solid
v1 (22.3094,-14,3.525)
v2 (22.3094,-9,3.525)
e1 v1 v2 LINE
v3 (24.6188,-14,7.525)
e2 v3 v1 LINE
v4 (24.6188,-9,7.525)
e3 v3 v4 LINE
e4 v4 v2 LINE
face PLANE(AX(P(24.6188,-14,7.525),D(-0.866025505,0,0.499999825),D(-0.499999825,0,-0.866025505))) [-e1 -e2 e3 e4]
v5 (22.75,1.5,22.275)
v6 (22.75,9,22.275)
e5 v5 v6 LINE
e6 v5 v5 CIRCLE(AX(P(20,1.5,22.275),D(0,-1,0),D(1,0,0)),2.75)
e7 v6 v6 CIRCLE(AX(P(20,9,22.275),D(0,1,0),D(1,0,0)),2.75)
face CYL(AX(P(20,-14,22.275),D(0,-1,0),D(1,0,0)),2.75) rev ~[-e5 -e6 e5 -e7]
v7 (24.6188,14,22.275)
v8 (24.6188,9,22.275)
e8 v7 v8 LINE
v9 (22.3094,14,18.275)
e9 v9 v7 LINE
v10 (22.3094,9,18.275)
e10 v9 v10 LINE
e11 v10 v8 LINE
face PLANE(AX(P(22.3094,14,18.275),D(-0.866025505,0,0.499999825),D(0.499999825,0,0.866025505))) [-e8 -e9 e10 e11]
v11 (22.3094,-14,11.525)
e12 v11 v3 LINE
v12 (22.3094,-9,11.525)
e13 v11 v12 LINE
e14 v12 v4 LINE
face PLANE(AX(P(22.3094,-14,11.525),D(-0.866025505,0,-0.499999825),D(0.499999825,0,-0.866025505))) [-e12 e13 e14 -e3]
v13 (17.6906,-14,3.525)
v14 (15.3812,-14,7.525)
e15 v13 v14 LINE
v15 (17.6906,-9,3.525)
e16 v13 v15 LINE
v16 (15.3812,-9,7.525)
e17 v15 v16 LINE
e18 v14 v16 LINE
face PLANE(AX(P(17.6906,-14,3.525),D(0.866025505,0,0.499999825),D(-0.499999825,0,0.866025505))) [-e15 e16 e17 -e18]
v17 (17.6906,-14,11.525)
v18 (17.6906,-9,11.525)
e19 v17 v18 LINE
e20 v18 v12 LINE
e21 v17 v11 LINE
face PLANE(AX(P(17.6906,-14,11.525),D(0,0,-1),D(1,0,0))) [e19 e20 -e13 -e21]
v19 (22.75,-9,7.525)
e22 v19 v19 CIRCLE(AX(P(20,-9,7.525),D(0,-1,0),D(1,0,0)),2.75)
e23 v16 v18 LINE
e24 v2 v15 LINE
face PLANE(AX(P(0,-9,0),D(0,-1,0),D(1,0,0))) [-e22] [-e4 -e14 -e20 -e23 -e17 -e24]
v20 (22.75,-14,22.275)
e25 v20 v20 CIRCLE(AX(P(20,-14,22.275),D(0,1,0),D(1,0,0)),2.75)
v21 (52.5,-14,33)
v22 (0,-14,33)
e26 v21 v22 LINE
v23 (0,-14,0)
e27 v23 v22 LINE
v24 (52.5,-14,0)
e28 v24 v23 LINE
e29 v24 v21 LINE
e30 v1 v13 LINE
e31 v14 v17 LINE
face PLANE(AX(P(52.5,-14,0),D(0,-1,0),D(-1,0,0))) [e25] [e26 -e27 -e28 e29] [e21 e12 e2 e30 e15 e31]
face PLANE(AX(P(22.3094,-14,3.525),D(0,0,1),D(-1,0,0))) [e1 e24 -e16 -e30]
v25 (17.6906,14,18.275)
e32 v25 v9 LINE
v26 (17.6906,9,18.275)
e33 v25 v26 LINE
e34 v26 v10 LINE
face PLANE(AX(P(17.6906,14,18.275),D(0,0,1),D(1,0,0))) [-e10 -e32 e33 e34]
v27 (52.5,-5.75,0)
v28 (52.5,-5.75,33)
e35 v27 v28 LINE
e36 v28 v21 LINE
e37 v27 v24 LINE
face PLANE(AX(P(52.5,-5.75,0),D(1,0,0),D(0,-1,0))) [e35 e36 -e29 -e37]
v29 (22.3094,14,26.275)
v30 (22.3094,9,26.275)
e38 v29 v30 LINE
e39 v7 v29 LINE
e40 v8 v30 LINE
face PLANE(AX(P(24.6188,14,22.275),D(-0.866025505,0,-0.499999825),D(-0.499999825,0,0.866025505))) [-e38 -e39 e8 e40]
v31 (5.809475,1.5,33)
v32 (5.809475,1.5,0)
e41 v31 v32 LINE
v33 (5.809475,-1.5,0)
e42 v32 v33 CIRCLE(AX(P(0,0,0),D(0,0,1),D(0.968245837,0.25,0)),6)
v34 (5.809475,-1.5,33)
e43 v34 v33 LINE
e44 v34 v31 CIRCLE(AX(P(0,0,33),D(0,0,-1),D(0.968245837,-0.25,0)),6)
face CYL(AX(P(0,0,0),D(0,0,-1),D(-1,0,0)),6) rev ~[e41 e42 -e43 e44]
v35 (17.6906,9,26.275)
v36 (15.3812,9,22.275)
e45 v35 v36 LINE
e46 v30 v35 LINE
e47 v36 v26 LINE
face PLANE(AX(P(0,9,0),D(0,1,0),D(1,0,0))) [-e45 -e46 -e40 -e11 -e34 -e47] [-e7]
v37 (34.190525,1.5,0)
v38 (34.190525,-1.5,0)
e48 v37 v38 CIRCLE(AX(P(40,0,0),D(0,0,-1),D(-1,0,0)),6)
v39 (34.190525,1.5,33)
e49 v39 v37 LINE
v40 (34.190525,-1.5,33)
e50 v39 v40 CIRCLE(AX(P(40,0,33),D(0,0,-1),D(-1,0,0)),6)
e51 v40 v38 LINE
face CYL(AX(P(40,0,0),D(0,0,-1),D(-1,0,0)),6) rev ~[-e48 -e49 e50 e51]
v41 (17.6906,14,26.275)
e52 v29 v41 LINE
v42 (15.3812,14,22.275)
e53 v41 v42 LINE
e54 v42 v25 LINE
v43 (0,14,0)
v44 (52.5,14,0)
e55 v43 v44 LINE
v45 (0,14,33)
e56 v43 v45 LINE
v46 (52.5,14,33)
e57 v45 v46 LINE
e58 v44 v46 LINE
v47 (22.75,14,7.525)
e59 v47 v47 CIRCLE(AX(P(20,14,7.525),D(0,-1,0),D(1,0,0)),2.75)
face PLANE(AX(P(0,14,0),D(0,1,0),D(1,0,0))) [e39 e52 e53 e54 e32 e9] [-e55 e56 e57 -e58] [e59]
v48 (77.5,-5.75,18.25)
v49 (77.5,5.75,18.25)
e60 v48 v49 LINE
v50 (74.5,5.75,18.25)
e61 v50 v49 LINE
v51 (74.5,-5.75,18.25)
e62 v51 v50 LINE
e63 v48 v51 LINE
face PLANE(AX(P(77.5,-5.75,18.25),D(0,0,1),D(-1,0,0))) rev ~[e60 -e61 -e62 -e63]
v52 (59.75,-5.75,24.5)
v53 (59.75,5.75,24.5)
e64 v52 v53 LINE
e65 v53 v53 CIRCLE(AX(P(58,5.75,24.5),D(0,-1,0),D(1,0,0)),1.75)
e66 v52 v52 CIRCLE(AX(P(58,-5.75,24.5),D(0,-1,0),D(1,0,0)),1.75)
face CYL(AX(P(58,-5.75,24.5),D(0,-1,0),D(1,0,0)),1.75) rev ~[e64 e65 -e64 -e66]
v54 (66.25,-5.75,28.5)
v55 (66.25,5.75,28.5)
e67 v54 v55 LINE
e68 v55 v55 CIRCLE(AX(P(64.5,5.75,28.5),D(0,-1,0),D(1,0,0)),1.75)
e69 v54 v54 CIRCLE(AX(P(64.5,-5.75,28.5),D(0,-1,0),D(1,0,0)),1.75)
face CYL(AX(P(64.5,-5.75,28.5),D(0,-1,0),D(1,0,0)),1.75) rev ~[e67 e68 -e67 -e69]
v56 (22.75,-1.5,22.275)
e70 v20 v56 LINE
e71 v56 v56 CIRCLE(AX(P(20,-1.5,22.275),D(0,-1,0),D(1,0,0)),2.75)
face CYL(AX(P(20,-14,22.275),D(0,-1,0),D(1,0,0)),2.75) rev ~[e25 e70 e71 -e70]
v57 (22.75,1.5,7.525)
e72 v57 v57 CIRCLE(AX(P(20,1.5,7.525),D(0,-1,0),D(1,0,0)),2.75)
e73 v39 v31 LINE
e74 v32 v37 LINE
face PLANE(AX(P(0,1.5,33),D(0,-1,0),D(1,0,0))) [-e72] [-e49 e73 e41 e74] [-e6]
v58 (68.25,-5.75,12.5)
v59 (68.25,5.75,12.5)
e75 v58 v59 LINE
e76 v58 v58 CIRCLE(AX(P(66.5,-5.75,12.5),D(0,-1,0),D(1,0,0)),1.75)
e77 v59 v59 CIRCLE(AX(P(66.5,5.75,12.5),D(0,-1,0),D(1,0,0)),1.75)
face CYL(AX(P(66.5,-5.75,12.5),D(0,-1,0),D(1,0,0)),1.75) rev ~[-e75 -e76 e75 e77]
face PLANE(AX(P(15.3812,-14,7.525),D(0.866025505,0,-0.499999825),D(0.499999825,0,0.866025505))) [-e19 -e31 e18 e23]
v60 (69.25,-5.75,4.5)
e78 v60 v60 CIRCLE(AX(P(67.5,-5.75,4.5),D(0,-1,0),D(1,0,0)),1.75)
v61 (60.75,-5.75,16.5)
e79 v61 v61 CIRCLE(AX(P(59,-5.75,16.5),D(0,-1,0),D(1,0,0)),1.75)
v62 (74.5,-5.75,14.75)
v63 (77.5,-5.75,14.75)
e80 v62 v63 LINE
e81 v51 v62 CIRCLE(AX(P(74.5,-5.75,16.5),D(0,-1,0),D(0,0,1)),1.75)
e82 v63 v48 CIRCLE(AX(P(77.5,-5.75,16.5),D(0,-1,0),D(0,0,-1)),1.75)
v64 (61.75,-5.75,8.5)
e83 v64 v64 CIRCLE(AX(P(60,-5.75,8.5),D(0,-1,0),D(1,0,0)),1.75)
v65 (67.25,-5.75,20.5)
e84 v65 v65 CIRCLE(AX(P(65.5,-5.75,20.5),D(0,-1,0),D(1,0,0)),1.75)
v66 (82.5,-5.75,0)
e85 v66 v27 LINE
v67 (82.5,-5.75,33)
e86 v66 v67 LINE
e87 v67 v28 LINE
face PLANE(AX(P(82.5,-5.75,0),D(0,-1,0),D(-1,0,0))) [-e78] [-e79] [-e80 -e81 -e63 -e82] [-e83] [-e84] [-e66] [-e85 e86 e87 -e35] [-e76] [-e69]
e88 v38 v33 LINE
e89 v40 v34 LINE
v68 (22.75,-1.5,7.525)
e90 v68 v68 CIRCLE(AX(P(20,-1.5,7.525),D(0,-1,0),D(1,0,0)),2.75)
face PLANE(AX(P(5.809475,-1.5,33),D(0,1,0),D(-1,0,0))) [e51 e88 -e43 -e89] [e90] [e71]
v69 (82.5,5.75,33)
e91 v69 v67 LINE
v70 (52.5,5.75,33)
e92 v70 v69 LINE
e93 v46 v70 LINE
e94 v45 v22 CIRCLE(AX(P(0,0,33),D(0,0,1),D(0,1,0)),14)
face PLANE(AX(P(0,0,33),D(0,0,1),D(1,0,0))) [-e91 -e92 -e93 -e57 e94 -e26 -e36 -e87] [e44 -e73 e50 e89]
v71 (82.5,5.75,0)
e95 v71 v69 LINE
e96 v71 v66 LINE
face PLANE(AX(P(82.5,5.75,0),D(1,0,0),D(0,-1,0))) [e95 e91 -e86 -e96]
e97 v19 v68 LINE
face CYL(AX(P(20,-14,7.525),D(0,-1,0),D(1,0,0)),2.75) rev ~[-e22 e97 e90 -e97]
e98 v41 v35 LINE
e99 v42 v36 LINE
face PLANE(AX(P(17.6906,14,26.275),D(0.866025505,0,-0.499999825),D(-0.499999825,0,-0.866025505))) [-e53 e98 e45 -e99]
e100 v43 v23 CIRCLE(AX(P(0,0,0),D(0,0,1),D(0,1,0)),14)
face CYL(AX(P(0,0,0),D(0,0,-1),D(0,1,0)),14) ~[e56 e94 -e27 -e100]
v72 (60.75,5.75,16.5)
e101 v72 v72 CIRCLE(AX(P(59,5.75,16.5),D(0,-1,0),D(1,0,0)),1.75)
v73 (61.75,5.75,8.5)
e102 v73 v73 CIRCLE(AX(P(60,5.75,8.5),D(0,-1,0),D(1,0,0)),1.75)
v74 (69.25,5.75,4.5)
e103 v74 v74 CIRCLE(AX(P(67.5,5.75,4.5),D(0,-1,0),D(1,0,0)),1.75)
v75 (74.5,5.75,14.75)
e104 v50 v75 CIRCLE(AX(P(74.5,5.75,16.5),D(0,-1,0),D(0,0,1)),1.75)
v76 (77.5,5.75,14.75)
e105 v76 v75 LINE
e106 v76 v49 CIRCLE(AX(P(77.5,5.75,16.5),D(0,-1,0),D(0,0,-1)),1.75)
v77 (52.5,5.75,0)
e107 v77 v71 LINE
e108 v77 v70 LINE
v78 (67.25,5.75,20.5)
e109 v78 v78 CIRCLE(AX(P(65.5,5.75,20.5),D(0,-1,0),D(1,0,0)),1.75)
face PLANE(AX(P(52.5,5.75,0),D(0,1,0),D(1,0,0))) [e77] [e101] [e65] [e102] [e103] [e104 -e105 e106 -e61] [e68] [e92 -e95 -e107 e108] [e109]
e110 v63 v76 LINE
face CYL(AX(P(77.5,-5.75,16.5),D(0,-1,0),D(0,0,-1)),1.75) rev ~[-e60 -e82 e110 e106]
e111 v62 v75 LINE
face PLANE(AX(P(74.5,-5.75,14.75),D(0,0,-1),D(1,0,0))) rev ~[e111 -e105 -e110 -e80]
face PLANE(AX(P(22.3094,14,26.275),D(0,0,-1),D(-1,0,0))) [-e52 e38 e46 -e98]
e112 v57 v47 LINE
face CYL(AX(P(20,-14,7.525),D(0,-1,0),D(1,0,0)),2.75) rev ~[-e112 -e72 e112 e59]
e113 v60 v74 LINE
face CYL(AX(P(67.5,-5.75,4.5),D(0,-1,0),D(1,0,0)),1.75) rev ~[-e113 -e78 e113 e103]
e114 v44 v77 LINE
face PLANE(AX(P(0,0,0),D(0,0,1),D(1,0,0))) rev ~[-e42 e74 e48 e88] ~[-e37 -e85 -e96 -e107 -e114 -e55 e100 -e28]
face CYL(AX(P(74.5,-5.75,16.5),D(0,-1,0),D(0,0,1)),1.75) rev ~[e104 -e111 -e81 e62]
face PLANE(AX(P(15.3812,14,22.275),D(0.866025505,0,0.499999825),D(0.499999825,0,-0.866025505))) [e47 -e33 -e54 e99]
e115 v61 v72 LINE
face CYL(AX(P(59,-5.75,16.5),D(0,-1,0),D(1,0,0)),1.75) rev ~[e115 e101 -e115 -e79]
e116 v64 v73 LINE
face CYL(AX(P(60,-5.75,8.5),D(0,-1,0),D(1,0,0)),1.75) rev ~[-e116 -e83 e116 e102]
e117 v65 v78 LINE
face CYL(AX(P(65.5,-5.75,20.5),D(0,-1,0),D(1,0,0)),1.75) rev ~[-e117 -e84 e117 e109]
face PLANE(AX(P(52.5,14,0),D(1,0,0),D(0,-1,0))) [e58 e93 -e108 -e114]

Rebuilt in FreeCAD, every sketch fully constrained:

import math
import FreeCAD as App
import Part
import Sketcher

V = App.Vector
Q = App.Units.Quantity


def add_polygon(sketch, points):
    """Adds a closed chain of lines whose ends are joined by coincident constraints."""
    first, n = sketch.GeometryCount, len(points)
    for a, b in zip(points, points[1:] + points[:1]):
        sketch.addGeometry(Part.LineSegment(App.Vector(*a, 0), App.Vector(*b, 0)), False)
    for i in range(n):
        sketch.addConstraint(Sketcher.Constraint("Coincident", first + i, 2, first + (i + 1) % n, 1))

doc = App.newDocument("Part")
body = doc.addObject("PartDesign::Body", "Body")

sketch1 = body.newObject("Sketcher::SketchObject", "Sketch")
sketch1.AttachmentSupport = (doc.getObject("XY_Plane"), [""])
sketch1.MapMode = "FlatFace"
sketch1.addGeometry([
    Part.LineSegment(V(52.5, 14, 0), V(0, 14, 0)),
    Part.ArcOfCircle(Part.Circle(V(0, 0, 0), V(0, 0, 1), 14), math.radians(90), math.radians(270)),
    Part.LineSegment(V(0, -14, 0), V(52.5, -14, 0)),
    Part.LineSegment(V(52.5, -14, 0), V(52.5, -5.75, 0)),
    Part.LineSegment(V(52.5, -5.75, 0), V(82.5, -5.75, 0)),
    Part.LineSegment(V(82.5, -5.75, 0), V(82.5, 5.75, 0)),
    Part.LineSegment(V(82.5, 5.75, 0), V(52.5, 5.75, 0)),
    Part.LineSegment(V(52.5, 5.75, 0), V(52.5, 14, 0)),
], False)
sketch1.addConstraint([
    Sketcher.Constraint("Tangent", 0, 2, 1, 1),
    Sketcher.Constraint("Tangent", 1, 2, 2, 1),
    Sketcher.Constraint("Coincident", 2, 2, 3, 1),
    Sketcher.Constraint("Coincident", 3, 2, 4, 1),
    Sketcher.Constraint("Coincident", 4, 2, 5, 1),
    Sketcher.Constraint("Coincident", 5, 2, 6, 1),
    Sketcher.Constraint("Coincident", 6, 2, 7, 1),
    Sketcher.Constraint("Coincident", 7, 2, 0, 1),
    Sketcher.Constraint("Horizontal", 0),
    Sketcher.Constraint("Horizontal", 2),
    Sketcher.Constraint("Vertical", 3),
    Sketcher.Constraint("Horizontal", 4),
    Sketcher.Constraint("Vertical", 5),
    Sketcher.Constraint("Horizontal", 6),
    Sketcher.Constraint("Vertical", 7),
    Sketcher.Constraint("Coincident", 1, 3, -1, 1),
    Sketcher.Constraint("Symmetric", 3, 2, 6, 2, -1),
    Sketcher.Constraint("Radius", 1, 14.0),
    Sketcher.Constraint("DistanceX", 4, 1, 4, 2, 30.0),
    Sketcher.Constraint("DistanceY", 5, 1, 5, 2, 11.5),
    Sketcher.Constraint("DistanceX", -1, 1, 4, 2, 82.5),
])
pad1 = body.newObject("PartDesign::Pad", "Pad")
pad1.Profile = sketch1
pad1.Length = 33

sketch2 = body.newObject("Sketcher::SketchObject", "Sketch001")
sketch2.AttachmentSupport = (doc.getObject("XY_Plane"), [""])
sketch2.MapMode = "FlatFace"
sketch2.addGeometry([
    Part.Circle(V(0, 0, 0), V(0, 0, 1), 6),
    Part.Circle(V(40, 0, 0), V(0, 0, 1), 6),
], False)
sketch2.addConstraint([
    Sketcher.Constraint("Coincident", 0, 3, -1, 1),
    Sketcher.Constraint("Equal", 0, 1),
    Sketcher.Constraint("PointOnObject", 1, 3, -1),
    Sketcher.Constraint("Diameter", 0, 12.0),
    Sketcher.Constraint("DistanceX", -1, 1, 1, 3, 40.0),
])
pocket1 = body.newObject("PartDesign::Pocket", "Pocket")
pocket1.Profile = sketch2
pocket1.Type = "ThroughAll"
pocket1.Reversed = True

sketch3 = body.newObject("Sketcher::SketchObject", "Sketch002")
sketch3.AttachmentSupport = (doc.getObject("XZ_Plane"), [""])
sketch3.MapMode = "FlatFace"
sketch3.AttachmentOffset = App.Placement(V(0, 0, 5.75), App.Rotation())
sketch3.addGeometry([
    Part.ArcOfCircle(Part.Circle(V(77.5, 16.5, 0), V(0, 0, 1), 1.75), math.radians(-90), math.radians(90)),
    Part.LineSegment(V(77.5, 18.25, 0), V(74.5, 18.25, 0)),
    Part.ArcOfCircle(Part.Circle(V(74.5, 16.5, 0), V(0, 0, 1), 1.75), math.radians(90), math.radians(270)),
    Part.LineSegment(V(74.5, 14.75, 0), V(77.5, 14.75, 0)),
], False)
sketch3.addConstraint([
    Sketcher.Constraint("Tangent", 0, 2, 1, 1),
    Sketcher.Constraint("Tangent", 1, 2, 2, 1),
    Sketcher.Constraint("Tangent", 2, 2, 3, 1),
    Sketcher.Constraint("Tangent", 3, 2, 0, 1),
    Sketcher.Constraint("Horizontal", 1),
    Sketcher.Constraint("Horizontal", 3),
    Sketcher.Constraint("DistanceX", 1, 2, 1, 1, 3.0),
    Sketcher.Constraint("Radius", 0, 1.75),
    Sketcher.Constraint("DistanceX", -1, 1, 0, 3, 77.5),
    Sketcher.Constraint("DistanceY", -1, 1, 0, 3, 16.5),
])
pocket2 = body.newObject("PartDesign::Pocket", "Pocket001")
pocket2.Profile = sketch3
pocket2.Type = "ThroughAll"

sketch4 = body.newObject("Sketcher::SketchObject", "Sketch003")
sketch4.AttachmentSupport = (doc.getObject("XZ_Plane"), [""])
sketch4.MapMode = "FlatFace"
sketch4.AttachmentOffset = App.Placement(V(0, 0, 5.75), App.Rotation())
sketch4.addGeometry([
    Part.Circle(V(64.5, 28.5, 0), V(0, 0, 1), 1.75),
    Part.Circle(V(58, 24.5, 0), V(0, 0, 1), 1.75),
    Part.Circle(V(65.5, 20.5, 0), V(0, 0, 1), 1.75),
    Part.Circle(V(59, 16.5, 0), V(0, 0, 1), 1.75),
    Part.Circle(V(66.5, 12.5, 0), V(0, 0, 1), 1.75),
    Part.Circle(V(60, 8.5, 0), V(0, 0, 1), 1.75),
    Part.Circle(V(67.5, 4.5, 0), V(0, 0, 1), 1.75),
], False)
sketch4.addConstraint([
    Sketcher.Constraint("Equal", 0, 1),
    Sketcher.Constraint("Equal", 1, 2),
    Sketcher.Constraint("Equal", 2, 3),
    Sketcher.Constraint("Equal", 3, 4),
    Sketcher.Constraint("Equal", 4, 5),
    Sketcher.Constraint("Equal", 5, 6),
    Sketcher.Constraint("Diameter", 0, 3.5),
    Sketcher.Constraint("DistanceX", 0, 3, 2, 3, 1.0),
    Sketcher.Constraint("DistanceY", 2, 3, 0, 3, 8.0),
    Sketcher.Constraint("DistanceX", 1, 3, 3, 3, 1.0),
    Sketcher.Constraint("DistanceY", 3, 3, 1, 3, 8.0),
    Sketcher.Constraint("DistanceX", 2, 3, 4, 3, 1.0),
    Sketcher.Constraint("DistanceY", 4, 3, 2, 3, 8.0),
    Sketcher.Constraint("DistanceX", 3, 3, 5, 3, 1.0),
    Sketcher.Constraint("DistanceY", 5, 3, 3, 3, 8.0),
    Sketcher.Constraint("DistanceX", 4, 3, 6, 3, 1.0),
    Sketcher.Constraint("DistanceY", 6, 3, 4, 3, 8.0),
    Sketcher.Constraint("DistanceX", -1, 1, 1, 3, 58.0),
    Sketcher.Constraint("DistanceY", 1, 3, 0, 3, 4.0),
    Sketcher.Constraint("DistanceX", -1, 1, 0, 3, 64.5),
    Sketcher.Constraint("DistanceY", -1, 1, 0, 3, 28.5),
])
pocket3 = body.newObject("PartDesign::Pocket", "Pocket002")
pocket3.Profile = sketch4
pocket3.Type = "ThroughAll"

sketch5 = body.newObject("Sketcher::SketchObject", "Sketch004")
sketch5.AttachmentSupport = (doc.getObject("XZ_Plane"), [""])
sketch5.MapMode = "FlatFace"
sketch5.AttachmentOffset = App.Placement(V(0, 0, 14), App.Rotation())
sketch5.addGeometry([
    Part.Circle(V(20, 7.525, 0), V(0, 0, 1), 2.75),
    Part.Circle(V(20, 22.275, 0), V(0, 0, 1), 2.75),
], False)
sketch5.addConstraint([
    Sketcher.Constraint("Equal", 0, 1),
    Sketcher.Constraint("Vertical", 0, 3, 1, 3),
    Sketcher.Constraint("Diameter", 0, 5.5),
    Sketcher.Constraint("DistanceX", -1, 1, 0, 3, 20.0),
    Sketcher.Constraint("DistanceY", 0, 3, 1, 3, 14.75),
    Sketcher.Constraint("DistanceY", -1, 1, 0, 3, 7.525),
])
pocket4 = body.newObject("PartDesign::Pocket", "Pocket003")
pocket4.Profile = sketch5
pocket4.Type = "ThroughAll"

sketch6 = body.newObject("Sketcher::SketchObject", "Sketch005")
sketch6.AttachmentSupport = (doc.getObject("XZ_Plane"), [""])
sketch6.MapMode = "FlatFace"
sketch6.AttachmentOffset = App.Placement(V(0, 0, -14), App.Rotation())
add_polygon(sketch6, [(24.6188, 22.275), (22.3094, 18.275), (17.6906, 18.275), (15.3812, 22.275), (17.6906, 26.275), (22.3094, 26.275)])
sketch6.addGeometry(Part.Circle(V(20, 22.275, 0), V(0, 0, 1), 2.75), False)
sketch6.addConstraint([
    Sketcher.Constraint("Horizontal", 1),
    Sketcher.Constraint("Horizontal", 4),
    Sketcher.Constraint("Parallel", 0, 3),
    Sketcher.Constraint("Parallel", 2, 5),
    Sketcher.Constraint("Horizontal", 6, 3, 2, 2),
    Sketcher.Constraint("Horizontal", 2, 2, 5, 2),
    Sketcher.Constraint("Vertical", 1, 2, 3, 2),
    Sketcher.Constraint("Vertical", 0, 2, 4, 2),
    Sketcher.Constraint("DistanceY", 1, 2, 3, 2, 8.0),
    Sketcher.Constraint("Diameter", 6, 5.5),
    Sketcher.Constraint("Angle", 0, Q("-120 deg")),
    Sketcher.Constraint("DistanceX", -1, 1, 6, 3, 20.0),
    Sketcher.Constraint("DistanceX", 1, 2, 1, 1, 4.6188),
    Sketcher.Constraint("DistanceY", -1, 1, 6, 3, 22.275),
    Sketcher.Constraint("DistanceX", -1, 1, 0, 2, 22.3094),
])
pocket5 = body.newObject("PartDesign::Pocket", "Pocket004")
pocket5.Profile = sketch6
pocket5.Length = 5
pocket5.Reversed = True

sketch7 = body.newObject("Sketcher::SketchObject", "Sketch006")
sketch7.AttachmentSupport = (doc.getObject("XZ_Plane"), [""])
sketch7.MapMode = "FlatFace"
sketch7.AttachmentOffset = App.Placement(V(0, 0, 14), App.Rotation())
add_polygon(sketch7, [(22.3094, 11.525), (17.6906, 11.525), (15.3812, 7.525), (17.6906, 3.525), (22.3094, 3.525), (24.6188, 7.525)])
sketch7.addGeometry(Part.Circle(V(20, 7.525, 0), V(0, 0, 1), 2.75), False)
sketch7.addConstraint([
    Sketcher.Constraint("Horizontal", 0),
    Sketcher.Constraint("Horizontal", 3),
    Sketcher.Constraint("Parallel", 1, 4),
    Sketcher.Constraint("Parallel", 2, 5),
    Sketcher.Constraint("Horizontal", 6, 3, 1, 2),
    Sketcher.Constraint("Horizontal", 1, 2, 4, 2),
    Sketcher.Constraint("Vertical", 0, 2, 2, 2),
    Sketcher.Constraint("Vertical", 3, 2, 5, 2),
    Sketcher.Constraint("DistanceY", 2, 2, 0, 2, 8.0),
    Sketcher.Constraint("Diameter", 6, 5.5),
    Sketcher.Constraint("Angle", 1, Q("-120 deg")),
    Sketcher.Constraint("DistanceX", -1, 1, 6, 3, 20.0),
    Sketcher.Constraint("DistanceX", 0, 2, 0, 1, 4.6188),
    Sketcher.Constraint("DistanceY", -1, 1, 6, 3, 7.525),
    Sketcher.Constraint("DistanceX", -1, 1, 0, 2, 17.6906),
])
pocket6 = body.newObject("PartDesign::Pocket", "Pocket005")
pocket6.Profile = sketch7
pocket6.Length = 5

sketch8 = body.newObject("Sketcher::SketchObject", "Sketch007")
sketch8.AttachmentSupport = (doc.getObject("XY_Plane"), [""])
sketch8.MapMode = "FlatFace"
sketch8.AttachmentOffset = App.Placement(V(0, 0, 33), App.Rotation())
add_polygon(sketch8, [(0, -1.5), (40, -1.5), (40, 1.5), (0, 1.5)])
sketch8.addConstraint([
    Sketcher.Constraint("Horizontal", 0),
    Sketcher.Constraint("Vertical", 1),
    Sketcher.Constraint("Horizontal", 2),
    Sketcher.Constraint("Vertical", 3),
    Sketcher.Constraint("Symmetric", 2, 2, 3, 2, -1, 1),
    Sketcher.Constraint("DistanceY", 1, 1, 1, 2, 3.0),
    Sketcher.Constraint("DistanceX", 0, 1, 0, 2, 40.0),
])
pocket7 = body.newObject("PartDesign::Pocket", "Pocket006")
pocket7.Profile = sketch8
pocket7.Type = "ThroughAll"

doc.recompute()
